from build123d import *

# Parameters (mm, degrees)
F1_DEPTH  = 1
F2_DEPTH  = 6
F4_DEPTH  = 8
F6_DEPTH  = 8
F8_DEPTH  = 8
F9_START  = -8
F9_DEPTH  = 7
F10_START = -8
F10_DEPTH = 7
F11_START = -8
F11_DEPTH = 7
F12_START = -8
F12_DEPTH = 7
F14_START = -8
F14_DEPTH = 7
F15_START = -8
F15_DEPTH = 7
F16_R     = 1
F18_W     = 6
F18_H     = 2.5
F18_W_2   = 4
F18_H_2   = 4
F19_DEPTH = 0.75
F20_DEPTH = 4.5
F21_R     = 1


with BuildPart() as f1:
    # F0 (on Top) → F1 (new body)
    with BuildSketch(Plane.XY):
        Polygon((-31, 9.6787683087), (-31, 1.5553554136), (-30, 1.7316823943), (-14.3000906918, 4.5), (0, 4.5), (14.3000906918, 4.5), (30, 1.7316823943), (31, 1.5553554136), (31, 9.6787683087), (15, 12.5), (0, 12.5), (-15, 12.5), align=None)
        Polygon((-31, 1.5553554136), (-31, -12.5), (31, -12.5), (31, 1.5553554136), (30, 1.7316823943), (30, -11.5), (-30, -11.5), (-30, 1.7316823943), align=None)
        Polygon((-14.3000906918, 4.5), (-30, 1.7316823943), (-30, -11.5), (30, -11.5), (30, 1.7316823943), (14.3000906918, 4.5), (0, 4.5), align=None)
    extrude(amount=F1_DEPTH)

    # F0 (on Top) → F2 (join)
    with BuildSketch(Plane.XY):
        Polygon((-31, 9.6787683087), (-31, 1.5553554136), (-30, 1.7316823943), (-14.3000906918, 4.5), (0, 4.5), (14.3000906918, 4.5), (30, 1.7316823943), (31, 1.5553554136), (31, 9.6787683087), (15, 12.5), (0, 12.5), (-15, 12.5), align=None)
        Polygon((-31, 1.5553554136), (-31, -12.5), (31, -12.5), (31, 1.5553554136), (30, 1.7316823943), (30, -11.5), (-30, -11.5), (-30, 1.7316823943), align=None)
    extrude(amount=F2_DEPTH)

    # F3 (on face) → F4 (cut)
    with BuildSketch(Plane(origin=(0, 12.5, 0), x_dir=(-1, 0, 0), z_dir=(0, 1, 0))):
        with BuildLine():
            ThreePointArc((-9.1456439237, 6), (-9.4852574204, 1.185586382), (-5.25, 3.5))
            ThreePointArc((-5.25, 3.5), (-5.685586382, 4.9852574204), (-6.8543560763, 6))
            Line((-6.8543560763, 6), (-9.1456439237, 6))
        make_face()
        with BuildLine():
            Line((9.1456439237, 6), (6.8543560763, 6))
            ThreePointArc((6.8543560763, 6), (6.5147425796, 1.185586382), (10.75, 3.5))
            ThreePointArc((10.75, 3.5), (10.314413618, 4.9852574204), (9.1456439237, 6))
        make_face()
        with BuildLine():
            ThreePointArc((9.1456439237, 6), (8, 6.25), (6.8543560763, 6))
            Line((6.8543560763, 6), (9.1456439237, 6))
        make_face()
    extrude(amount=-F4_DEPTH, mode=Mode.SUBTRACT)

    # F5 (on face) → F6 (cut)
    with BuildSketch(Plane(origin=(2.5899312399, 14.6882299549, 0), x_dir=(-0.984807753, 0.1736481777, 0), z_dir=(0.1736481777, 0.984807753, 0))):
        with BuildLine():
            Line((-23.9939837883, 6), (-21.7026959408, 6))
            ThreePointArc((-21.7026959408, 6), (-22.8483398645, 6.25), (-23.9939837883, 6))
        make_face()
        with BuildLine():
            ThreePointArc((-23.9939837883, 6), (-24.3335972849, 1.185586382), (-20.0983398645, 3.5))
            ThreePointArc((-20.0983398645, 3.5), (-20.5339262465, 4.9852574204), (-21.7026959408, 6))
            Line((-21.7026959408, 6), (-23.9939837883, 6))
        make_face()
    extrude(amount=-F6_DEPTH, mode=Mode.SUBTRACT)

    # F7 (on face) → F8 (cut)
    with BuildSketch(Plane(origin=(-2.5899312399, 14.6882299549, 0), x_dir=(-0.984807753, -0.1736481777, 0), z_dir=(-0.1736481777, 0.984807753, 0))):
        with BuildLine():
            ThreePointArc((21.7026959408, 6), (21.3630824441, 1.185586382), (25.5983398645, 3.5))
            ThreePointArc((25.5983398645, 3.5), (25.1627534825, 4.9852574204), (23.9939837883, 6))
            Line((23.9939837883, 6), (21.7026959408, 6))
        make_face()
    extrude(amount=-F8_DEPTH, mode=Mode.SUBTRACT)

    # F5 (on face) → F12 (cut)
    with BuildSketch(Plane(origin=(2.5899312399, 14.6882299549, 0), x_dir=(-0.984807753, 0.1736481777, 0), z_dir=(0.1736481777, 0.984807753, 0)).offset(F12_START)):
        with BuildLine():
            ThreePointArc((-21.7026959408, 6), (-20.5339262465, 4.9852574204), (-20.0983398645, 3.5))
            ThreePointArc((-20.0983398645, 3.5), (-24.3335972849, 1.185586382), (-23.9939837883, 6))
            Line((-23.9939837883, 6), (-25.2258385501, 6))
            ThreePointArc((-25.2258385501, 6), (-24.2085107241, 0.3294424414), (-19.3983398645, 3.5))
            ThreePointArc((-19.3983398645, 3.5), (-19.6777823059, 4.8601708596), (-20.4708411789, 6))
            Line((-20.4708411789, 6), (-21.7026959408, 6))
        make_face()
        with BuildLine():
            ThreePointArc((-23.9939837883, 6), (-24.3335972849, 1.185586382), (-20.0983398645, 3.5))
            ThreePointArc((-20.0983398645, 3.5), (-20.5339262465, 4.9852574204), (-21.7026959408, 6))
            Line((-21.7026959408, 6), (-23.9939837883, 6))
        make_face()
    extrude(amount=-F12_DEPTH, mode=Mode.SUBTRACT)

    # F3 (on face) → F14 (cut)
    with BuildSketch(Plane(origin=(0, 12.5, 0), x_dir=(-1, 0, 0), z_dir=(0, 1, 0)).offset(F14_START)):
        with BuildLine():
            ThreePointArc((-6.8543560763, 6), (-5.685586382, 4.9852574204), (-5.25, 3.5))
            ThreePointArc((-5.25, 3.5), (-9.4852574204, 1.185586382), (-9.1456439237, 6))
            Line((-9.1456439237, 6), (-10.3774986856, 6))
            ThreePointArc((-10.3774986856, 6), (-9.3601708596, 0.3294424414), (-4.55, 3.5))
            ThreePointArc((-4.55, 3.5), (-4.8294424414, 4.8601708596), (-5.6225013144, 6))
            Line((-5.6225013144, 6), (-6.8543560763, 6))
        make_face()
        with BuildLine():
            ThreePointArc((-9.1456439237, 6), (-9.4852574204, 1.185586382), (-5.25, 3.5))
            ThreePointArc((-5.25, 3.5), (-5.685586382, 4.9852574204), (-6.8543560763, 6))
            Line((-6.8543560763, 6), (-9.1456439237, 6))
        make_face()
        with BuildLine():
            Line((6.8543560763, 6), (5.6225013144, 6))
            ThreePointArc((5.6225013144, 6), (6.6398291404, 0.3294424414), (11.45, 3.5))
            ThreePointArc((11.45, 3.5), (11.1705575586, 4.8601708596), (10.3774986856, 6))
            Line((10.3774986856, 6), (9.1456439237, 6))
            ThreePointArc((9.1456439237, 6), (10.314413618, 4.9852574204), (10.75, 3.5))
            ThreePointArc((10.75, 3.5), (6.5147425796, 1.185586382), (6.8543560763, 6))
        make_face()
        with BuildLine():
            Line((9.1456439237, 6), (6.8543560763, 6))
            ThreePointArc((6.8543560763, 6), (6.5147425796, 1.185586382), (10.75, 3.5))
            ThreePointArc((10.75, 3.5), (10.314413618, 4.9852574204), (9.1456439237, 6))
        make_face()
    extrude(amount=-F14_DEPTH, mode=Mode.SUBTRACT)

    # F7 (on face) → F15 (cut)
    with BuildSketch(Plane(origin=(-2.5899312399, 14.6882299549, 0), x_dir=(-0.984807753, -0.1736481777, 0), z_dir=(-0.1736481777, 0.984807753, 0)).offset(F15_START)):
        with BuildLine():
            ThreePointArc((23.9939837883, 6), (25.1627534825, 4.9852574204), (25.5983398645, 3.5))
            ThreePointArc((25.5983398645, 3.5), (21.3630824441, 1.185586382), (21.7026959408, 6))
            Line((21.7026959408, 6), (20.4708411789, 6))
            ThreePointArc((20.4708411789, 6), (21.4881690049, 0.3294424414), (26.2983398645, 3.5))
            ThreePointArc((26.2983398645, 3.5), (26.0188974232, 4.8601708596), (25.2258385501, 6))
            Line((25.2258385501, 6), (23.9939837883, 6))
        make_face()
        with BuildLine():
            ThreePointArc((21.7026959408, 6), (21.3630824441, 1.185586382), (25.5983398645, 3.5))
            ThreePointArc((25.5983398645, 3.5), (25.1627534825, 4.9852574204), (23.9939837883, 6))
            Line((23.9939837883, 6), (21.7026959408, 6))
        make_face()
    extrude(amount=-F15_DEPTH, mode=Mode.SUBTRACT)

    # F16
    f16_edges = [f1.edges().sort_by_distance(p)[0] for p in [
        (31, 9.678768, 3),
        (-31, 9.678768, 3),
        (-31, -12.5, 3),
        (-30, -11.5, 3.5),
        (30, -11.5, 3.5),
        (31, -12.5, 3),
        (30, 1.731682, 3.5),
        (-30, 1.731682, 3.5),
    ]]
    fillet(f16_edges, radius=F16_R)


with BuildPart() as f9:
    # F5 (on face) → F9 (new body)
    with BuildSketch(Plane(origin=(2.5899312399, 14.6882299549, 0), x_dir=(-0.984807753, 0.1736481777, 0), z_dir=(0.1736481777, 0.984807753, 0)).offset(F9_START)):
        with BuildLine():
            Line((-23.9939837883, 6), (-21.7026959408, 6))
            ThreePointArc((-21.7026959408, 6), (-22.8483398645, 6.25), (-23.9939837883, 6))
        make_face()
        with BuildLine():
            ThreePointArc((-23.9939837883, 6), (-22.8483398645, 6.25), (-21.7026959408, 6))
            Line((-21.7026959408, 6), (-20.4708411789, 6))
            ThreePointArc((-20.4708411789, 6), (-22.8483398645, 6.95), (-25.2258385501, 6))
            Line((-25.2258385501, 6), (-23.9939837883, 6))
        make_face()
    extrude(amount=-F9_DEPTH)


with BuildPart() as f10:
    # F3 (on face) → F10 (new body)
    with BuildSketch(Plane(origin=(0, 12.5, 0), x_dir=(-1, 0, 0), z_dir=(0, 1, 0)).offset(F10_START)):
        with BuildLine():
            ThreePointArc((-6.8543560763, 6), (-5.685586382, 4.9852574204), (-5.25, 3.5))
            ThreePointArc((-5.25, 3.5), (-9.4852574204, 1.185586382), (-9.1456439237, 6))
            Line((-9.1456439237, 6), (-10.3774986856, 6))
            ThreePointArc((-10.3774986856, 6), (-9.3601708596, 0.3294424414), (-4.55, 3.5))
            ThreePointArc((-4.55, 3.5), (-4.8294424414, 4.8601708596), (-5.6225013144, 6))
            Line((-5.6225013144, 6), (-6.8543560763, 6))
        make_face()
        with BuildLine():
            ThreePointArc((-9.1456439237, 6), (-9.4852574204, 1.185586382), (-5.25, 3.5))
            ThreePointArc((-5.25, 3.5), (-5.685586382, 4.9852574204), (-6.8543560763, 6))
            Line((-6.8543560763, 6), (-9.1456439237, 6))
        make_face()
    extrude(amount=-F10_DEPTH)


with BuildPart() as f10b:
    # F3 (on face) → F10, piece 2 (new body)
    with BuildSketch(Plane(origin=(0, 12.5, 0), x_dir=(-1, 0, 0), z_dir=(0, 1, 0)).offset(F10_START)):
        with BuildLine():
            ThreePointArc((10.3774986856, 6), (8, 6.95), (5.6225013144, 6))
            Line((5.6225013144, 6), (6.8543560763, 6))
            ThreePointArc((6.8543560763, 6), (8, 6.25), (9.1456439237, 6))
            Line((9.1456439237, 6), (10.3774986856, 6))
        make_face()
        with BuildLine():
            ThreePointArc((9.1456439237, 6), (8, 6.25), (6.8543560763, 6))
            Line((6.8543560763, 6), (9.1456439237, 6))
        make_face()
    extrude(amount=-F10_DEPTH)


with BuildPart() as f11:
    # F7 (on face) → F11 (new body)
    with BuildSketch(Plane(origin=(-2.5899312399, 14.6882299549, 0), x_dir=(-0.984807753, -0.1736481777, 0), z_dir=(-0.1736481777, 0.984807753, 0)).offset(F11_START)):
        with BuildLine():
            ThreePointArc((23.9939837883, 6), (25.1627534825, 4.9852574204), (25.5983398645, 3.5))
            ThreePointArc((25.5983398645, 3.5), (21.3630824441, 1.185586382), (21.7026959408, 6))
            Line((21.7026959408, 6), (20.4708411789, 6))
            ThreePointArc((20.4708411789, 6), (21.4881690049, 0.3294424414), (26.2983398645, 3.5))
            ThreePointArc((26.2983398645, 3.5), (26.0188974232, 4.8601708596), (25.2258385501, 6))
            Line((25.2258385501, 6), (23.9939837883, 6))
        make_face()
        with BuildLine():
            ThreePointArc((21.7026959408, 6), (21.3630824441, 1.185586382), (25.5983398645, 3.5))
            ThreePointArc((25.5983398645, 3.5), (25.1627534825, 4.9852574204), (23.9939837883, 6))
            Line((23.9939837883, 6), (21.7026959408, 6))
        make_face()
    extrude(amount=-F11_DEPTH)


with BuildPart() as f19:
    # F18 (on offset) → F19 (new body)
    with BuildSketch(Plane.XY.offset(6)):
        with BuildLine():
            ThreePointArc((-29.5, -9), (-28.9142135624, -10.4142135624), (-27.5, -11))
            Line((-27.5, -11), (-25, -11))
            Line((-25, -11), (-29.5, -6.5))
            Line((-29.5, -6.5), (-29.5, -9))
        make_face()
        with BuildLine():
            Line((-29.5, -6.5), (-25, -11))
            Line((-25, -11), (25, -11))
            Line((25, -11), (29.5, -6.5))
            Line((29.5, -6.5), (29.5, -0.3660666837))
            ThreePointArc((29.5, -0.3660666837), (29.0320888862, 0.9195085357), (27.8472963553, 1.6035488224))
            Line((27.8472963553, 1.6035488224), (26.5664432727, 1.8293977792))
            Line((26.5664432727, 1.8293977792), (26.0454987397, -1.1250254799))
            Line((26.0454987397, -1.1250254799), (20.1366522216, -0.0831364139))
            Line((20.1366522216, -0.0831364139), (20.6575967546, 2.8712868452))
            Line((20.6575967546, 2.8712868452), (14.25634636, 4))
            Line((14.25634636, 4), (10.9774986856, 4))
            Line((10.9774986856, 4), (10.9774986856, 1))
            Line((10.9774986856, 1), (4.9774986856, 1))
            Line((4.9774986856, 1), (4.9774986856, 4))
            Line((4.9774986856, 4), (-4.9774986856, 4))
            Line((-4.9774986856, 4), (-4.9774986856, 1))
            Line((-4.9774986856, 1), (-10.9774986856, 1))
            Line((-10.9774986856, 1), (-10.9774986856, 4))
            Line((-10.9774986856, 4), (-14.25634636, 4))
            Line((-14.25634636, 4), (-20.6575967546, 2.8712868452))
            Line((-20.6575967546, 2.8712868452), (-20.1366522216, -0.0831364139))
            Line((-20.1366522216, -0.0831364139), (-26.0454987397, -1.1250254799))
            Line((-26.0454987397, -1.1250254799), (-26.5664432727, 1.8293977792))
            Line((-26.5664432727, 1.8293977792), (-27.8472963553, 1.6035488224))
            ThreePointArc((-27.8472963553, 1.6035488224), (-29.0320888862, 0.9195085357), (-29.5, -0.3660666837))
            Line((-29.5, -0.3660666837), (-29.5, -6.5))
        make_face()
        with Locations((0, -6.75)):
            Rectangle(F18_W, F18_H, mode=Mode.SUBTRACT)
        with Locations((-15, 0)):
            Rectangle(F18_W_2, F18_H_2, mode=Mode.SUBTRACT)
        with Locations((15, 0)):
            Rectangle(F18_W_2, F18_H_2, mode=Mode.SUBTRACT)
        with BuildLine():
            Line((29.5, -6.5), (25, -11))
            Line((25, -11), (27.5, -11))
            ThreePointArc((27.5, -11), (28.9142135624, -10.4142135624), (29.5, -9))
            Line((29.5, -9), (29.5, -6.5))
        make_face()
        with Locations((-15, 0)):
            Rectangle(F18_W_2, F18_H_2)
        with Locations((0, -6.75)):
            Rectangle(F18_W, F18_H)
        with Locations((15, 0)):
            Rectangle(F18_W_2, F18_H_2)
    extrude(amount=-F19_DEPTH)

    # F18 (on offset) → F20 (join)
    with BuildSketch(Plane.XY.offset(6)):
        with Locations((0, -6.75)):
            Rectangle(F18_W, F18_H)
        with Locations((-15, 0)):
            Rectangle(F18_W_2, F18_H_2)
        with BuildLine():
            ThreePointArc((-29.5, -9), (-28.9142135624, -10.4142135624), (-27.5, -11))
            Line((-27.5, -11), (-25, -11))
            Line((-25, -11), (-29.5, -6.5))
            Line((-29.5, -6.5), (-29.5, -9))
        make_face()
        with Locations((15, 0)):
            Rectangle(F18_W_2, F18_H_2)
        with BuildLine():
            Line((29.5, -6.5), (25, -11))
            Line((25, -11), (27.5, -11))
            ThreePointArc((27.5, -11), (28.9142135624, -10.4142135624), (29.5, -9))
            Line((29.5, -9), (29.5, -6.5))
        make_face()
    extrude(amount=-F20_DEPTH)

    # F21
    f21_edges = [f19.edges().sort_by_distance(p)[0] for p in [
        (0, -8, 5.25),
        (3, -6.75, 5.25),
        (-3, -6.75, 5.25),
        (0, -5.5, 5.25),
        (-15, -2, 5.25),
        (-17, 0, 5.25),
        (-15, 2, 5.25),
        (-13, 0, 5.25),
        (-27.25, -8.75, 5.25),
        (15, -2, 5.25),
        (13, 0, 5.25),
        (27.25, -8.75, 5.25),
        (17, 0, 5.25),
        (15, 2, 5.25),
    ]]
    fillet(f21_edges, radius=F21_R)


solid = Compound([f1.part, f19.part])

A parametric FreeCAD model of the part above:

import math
import FreeCAD as App
import Part
import Sketcher

V = App.Vector
Q = App.Units.Quantity


def edges_at(feature, points):
    """Names of the edges that pass closest to the given points."""
    edges = feature.Shape.Edges
    near = lambda p: min(range(len(edges)), key=lambda i: edges[i].distToShape(Part.Vertex(*p))[0])
    return sorted({f"Edge{near(p) + 1}" for p in points})


def add_polygon(sketch, points):
    """Adds a closed chain of lines whose ends are joined by coincident constraints."""
    first, n = sketch.GeometryCount, len(points)
    for a, b in zip(points, points[1:] + points[:1]):
        sketch.addGeometry(Part.LineSegment(App.Vector(*a, 0), App.Vector(*b, 0)), False)
    for i in range(n):
        sketch.addConstraint(Sketcher.Constraint("Coincident", first + i, 2, first + (i + 1) % n, 1))

doc = App.newDocument("Part")
body = doc.addObject("PartDesign::Body", "Body")

# Sketch on XY plane
sketch1 = doc.addObject("Sketcher::SketchObject", "Sketch")
body.addObject(sketch1)
sketch1.AttachmentSupport = (doc.XY_Plane, [""])
sketch1.MapMode = "FlatFace"
add_polygon(sketch1, [(-31, 9.678768), (-31, -12.5), (31, -12.5), (31, 9.678768), (15, 12.5), (-15, 12.5)])  # lines 0-5
sketch1.addConstraint([
    Sketcher.Constraint("Vertical", 0),
    Sketcher.Constraint("Horizontal", 1),
    Sketcher.Constraint("Vertical", 2),
    Sketcher.Constraint("Horizontal", 4),
    Sketcher.Constraint("Symmetric", 2, 2, 5, 2, -2),
    Sketcher.Constraint("Equal", 3, 5),
    Sketcher.Constraint("DistanceX", 1, 1, 1, 2, Q("62 mm")),
    Sketcher.Constraint("DistanceX", 4, 2, 4, 1, Q("30 mm")),
    Sketcher.Constraint("Angle", 3, Q("170 deg")),
    Sketcher.Constraint("DistanceY", 1, 2, 3, 2, Q("25 mm")),
    Sketcher.Constraint("DistanceY", 0, 2, -1, 1, Q("12.5 mm")),
])
pad1 = doc.addObject("PartDesign::Pad", "Pad")
body.addObject(pad1)
pad1.Profile = sketch1
pad1.Length = 1

# Sketch on XY plane
sketch2 = doc.addObject("Sketcher::SketchObject", "Sketch001")
body.addObject(sketch2)
sketch2.AttachmentSupport = (doc.XY_Plane, [""])
sketch2.MapMode = "FlatFace"
add_polygon(sketch2, [(-31, 9.678768), (-31, -12.5), (31, -12.5), (31, 9.678768), (15, 12.5), (-15, 12.5)])  # lines 0-5
add_polygon(sketch2, [(-30, 1.731682), (-14.300091, 4.5), (14.300091, 4.5), (30, 1.731682), (30, -11.5), (-30, -11.5)])  # lines 6-11
sketch2.addConstraint([
    Sketcher.Constraint("Vertical", 0),
    Sketcher.Constraint("Horizontal", 1),
    Sketcher.Constraint("Vertical", 2),
    Sketcher.Constraint("Horizontal", 4),
    Sketcher.Constraint("Horizontal", 7),
    Sketcher.Constraint("Vertical", 9),
    Sketcher.Constraint("Horizontal", 10),
    Sketcher.Constraint("Vertical", 11),
    Sketcher.Constraint("Symmetric", 2, 2, 5, 2, -2),
    Sketcher.Constraint("Symmetric", 8, 2, 11, 2, -2),
    Sketcher.Constraint("Parallel", 5, 6),
    Sketcher.Constraint("Parallel", 3, 8),
    Sketcher.Constraint("Equal", 3, 5),
    Sketcher.Constraint("DistanceX", 1, 1, 1, 2, Q("62 mm")),
    Sketcher.Constraint("DistanceX", 4, 2, 4, 1, Q("30 mm")),
    Sketcher.Constraint("DistanceX", 10, 2, 10, 1, Q("60 mm")),
    Sketcher.Constraint("Angle", 3, Q("170 deg")),
    Sketcher.Constraint("DistanceY", 1, 2, 3, 2, Q("25 mm")),
    Sketcher.Constraint("DistanceY", 6, 2, 4, 2, Q("8 mm")),
    Sketcher.Constraint("DistanceY", 1, 2, 9, 2, Q("1 mm")),
    Sketcher.Constraint("DistanceY", 0, 2, -1, 1, Q("12.5 mm")),
    Sketcher.Constraint("DistanceX", 7, 1, 7, 2, Q("28.600181 mm")),
])
pad2 = doc.addObject("PartDesign::Pad", "Pad001")
body.addObject(pad2)
pad2.Profile = sketch2
pad2.Length = 6

# Sketch on XZ plane
sketch3 = doc.addObject("Sketcher::SketchObject", "Sketch002")
body.addObject(sketch3)
sketch3.AttachmentSupport = (doc.XZ_Plane, [""])
sketch3.MapMode = "FlatFace"
sketch3.AttachmentOffset = App.Placement(V(0, 0, -12.5), App.Rotation())
sketch3.addGeometry([
    Part.ArcOfCircle(Part.Circle(V(8, 3.5, 0), V(0, 0, 1), 2.75), math.radians(180), math.radians(425.380023)),  # 0
    Part.ArcOfCircle(Part.Circle(V(8, 3.5, 0), V(0, 0, 1), 2.75), math.radians(114.619977), math.radians(180)),  # 1
    Part.LineSegment(V(6.854356, 6, 0), V(9.145644, 6, 0)),  # 2
    Part.ArcOfCircle(Part.Circle(V(-8, 3.5, 0), V(0, 0, 1), 2.75), math.radians(180), math.radians(425.380023)),  # 3
    Part.ArcOfCircle(Part.Circle(V(-8, 3.5, 0), V(0, 0, 1), 2.75), math.radians(114.619977), math.radians(180)),  # 4
    Part.ArcOfCircle(Part.Circle(V(-8, 3.5, 0), V(0, 0, 1), 2.75), math.radians(65.380023), math.radians(114.619977)),  # 5
], False)
sketch3.addConstraint([
    Sketcher.Constraint("Tangent", 0, 1, 1, 2),
    Sketcher.Constraint("Coincident", 1, 1, 2, 1),
    Sketcher.Constraint("Coincident", 2, 2, 0, 2),
    Sketcher.Constraint("Tangent", 3, 1, 4, 2),
    Sketcher.Constraint("Tangent", 4, 1, 5, 2),
    Sketcher.Constraint("Tangent", 5, 1, 3, 2),
    Sketcher.Constraint("Horizontal", 2),
    Sketcher.Constraint("Equal", 0, 1),
    Sketcher.Constraint("Equal", 1, 3),
    Sketcher.Constraint("Symmetric", 0, 3, 3, 3, -2),
    Sketcher.Constraint("Horizontal", 5, 3, 0, 1),
    Sketcher.Constraint("Horizontal", 0, 1, 3, 1),
    Sketcher.Constraint("Horizontal", 2, 2, 4, 1),
    Sketcher.Constraint("Horizontal", 4, 1, 5, 1),
    Sketcher.Constraint("Radius", 0, Q("2.75 mm")),
    Sketcher.Constraint("DistanceX", -1, 1, 0, 3, Q("8 mm")),
    Sketcher.Constraint("DistanceY", -1, 1, 1, 1, Q("6 mm")),
    Sketcher.Constraint("DistanceY", -1, 1, 0, 3, Q("3.5 mm")),
])
pocket1 = doc.addObject("PartDesign::Pocket", "Pocket")
body.addObject(pocket1)
pocket1.Profile = sketch3
pocket1.Length = 8
pocket1.Reversed = True

# Sketch on an angled plane
sketch4 = doc.addObject("Sketcher::SketchObject", "Sketch003")
body.addObject(sketch4)
sketch4.Placement = App.Placement(V(2.589931, 14.68823, 0), App.Rotation(V(-0.984807753, 0.173648178, 0), V(0, 0, 1), V(0.173648178, 0.984807753, 0), "ZXY"))
sketch4.addGeometry([
    Part.ArcOfCircle(Part.Circle(V(-22.84834, 3.5, 0), V(0, 0, 1), 2.75), math.radians(65.380023), math.radians(114.619977)),
    Part.ArcOfCircle(Part.Circle(V(-22.84834, 3.5, 0), V(0, 0, 1), 2.75), math.radians(114.619977), math.radians(360)),
    Part.ArcOfCircle(Part.Circle(V(-22.84834, 3.5, 0), V(0, 0, 1), 2.75), math.radians(0), math.radians(65.380023)),
], False)
sketch4.addConstraint([
    Sketcher.Constraint("Tangent", 0, 2, 1, 1),
    Sketcher.Constraint("Tangent", 1, 2, 2, 1),
    Sketcher.Constraint("Tangent", 2, 2, 0, 1),
    Sketcher.Constraint("Horizontal", 2, 3, 1, 2),
    Sketcher.Constraint("Horizontal", 0, 2, 2, 2),
    Sketcher.Constraint("Radius", 0, Q("2.75 mm")),
    Sketcher.Constraint("DistanceY", -1, 1, 0, 2, Q("6 mm")),
    Sketcher.Constraint("DistanceY", -1, 1, 0, 3, Q("3.5 mm")),
    Sketcher.Constraint("DistanceX", 0, 3, -1, 1, Q("22.84834 mm")),
])
pocket2 = doc.addObject("PartDesign::Pocket", "Pocket001")
body.addObject(pocket2)
pocket2.Profile = sketch4
pocket2.Length = 8

# Sketch on an angled plane
sketch5 = doc.addObject("Sketcher::SketchObject", "Sketch004")
body.addObject(sketch5)
sketch5.Placement = App.Placement(V(-2.589931, 14.68823, 0), App.Rotation(V(-0.984807753, -0.173648178, 0), V(0, 0, 1), V(-0.173648178, 0.984807753, 0), "ZXY"))
sketch5.addGeometry([
    Part.ArcOfCircle(Part.Circle(V(22.84834, 3.5, 0), V(0, 0, 1), 2.75), math.radians(114.619977), math.radians(360)),
    Part.ArcOfCircle(Part.Circle(V(22.84834, 3.5, 0), V(0, 0, 1), 2.75), math.radians(0), math.radians(65.380023)),
    Part.LineSegment(V(23.993984, 6, 0), V(21.702696, 6, 0)),
], False)
sketch5.addConstraint([
    Sketcher.Constraint("Tangent", 0, 2, 1, 1),
    Sketcher.Constraint("Coincident", 1, 2, 2, 1),
    Sketcher.Constraint("Coincident", 2, 2, 0, 1),
    Sketcher.Constraint("Horizontal", 2),
    Sketcher.Constraint("Equal", 0, 1),
    Sketcher.Constraint("Horizontal", 1, 3, 0, 2),
    Sketcher.Constraint("Radius", 0, Q("2.75 mm")),
    Sketcher.Constraint("DistanceY", -1, 1, 1, 2, Q("6 mm")),
    Sketcher.Constraint("DistanceY", -1, 1, 0, 3, Q("3.5 mm")),
    Sketcher.Constraint("DistanceX", -1, 1, 0, 3, Q("22.84834 mm")),
])
pocket3 = doc.addObject("PartDesign::Pocket", "Pocket002")
body.addObject(pocket3)
pocket3.Profile = sketch5
pocket3.Length = 8

# Sketch on an angled plane
sketch6 = doc.addObject("Sketcher::SketchObject", "Sketch005")
body.addObject(sketch6)
sketch6.Placement = App.Placement(V(1.200746, 6.809768, 0), App.Rotation(V(-0.984807753, 0.173648178, 0), V(0, 0, 1), V(0.173648178, 0.984807753, 0), "ZXY"))
sketch6.addGeometry([
    Part.ArcOfCircle(Part.Circle(V(-22.84834, 3.5, 0), V(0, 0, 1), 3.45), math.radians(133.561284), math.radians(360)),
    Part.ArcOfCircle(Part.Circle(V(-22.84834, 3.5, 0), V(0, 0, 1), 3.45), math.radians(0), math.radians(46.438716)),
    Part.LineSegment(V(-20.470841, 6, 0), V(-25.225839, 6, 0)),
], False)
sketch6.addConstraint([
    Sketcher.Constraint("Tangent", 0, 2, 1, 1),
    Sketcher.Constraint("Coincident", 1, 2, 2, 1),
    Sketcher.Constraint("Coincident", 2, 2, 0, 1),
    Sketcher.Constraint("Horizontal", 2),
    Sketcher.Constraint("Equal", 0, 1),
    Sketcher.Constraint("Horizontal", 1, 3, 0, 2),
    Sketcher.Constraint("Radius", 0, Q("3.45 mm")),
    Sketcher.Constraint("DistanceY", -1, 1, 1, 2, Q("6 mm")),
    Sketcher.Constraint("DistanceY", -1, 1, 0, 3, Q("3.5 mm")),
    Sketcher.Constraint("DistanceX", 0, 3, -1, 1, Q("22.84834 mm")),
])
pocket4 = doc.addObject("PartDesign::Pocket", "Pocket003")
body.addObject(pocket4)
pocket4.Profile = sketch6
pocket4.Length = 7

# Sketch on XZ plane
sketch7 = doc.addObject("Sketcher::SketchObject", "Sketch006")
body.addObject(sketch7)
sketch7.AttachmentSupport = (doc.XZ_Plane, [""])
sketch7.MapMode = "FlatFace"
sketch7.AttachmentOffset = App.Placement(V(0, 0, -4.5), App.Rotation())
sketch7.addGeometry([
    Part.ArcOfCircle(Part.Circle(V(8, 3.5, 0), V(0, 0, 1), 3.45), math.radians(180), math.radians(406.438716)),  # 0
    Part.ArcOfCircle(Part.Circle(V(8, 3.5, 0), V(0, 0, 1), 3.45), math.radians(133.561284), math.radians(180)),  # 1
    Part.LineSegment(V(5.622501, 6, 0), V(10.377499, 6, 0)),  # 2
    Part.ArcOfCircle(Part.Circle(V(-8, 3.5, 0), V(0, 0, 1), 3.45), math.radians(180), math.radians(406.438716)),  # 3
    Part.ArcOfCircle(Part.Circle(V(-8, 3.5, 0), V(0, 0, 1), 3.45), math.radians(133.561284), math.radians(180)),  # 4
    Part.LineSegment(V(-10.377499, 6, 0), V(-5.622501, 6, 0)),  # 5
], False)
sketch7.addConstraint([
    Sketcher.Constraint("Tangent", 0, 1, 1, 2),
    Sketcher.Constraint("Coincident", 1, 1, 2, 1),
    Sketcher.Constraint("Coincident", 2, 2, 0, 2),
    Sketcher.Constraint("Tangent", 3, 1, 4, 2),
    Sketcher.Constraint("Coincident", 4, 1, 5, 1),
    Sketcher.Constraint("Coincident", 5, 2, 3, 2),
    Sketcher.Constraint("Horizontal", 2),
    Sketcher.Constraint("Horizontal", 5),
    Sketcher.Constraint("Equal", 0, 1),
    Sketcher.Constraint("Equal", 1, 3),
    Sketcher.Constraint("Equal", 3, 4),
    Sketcher.Constraint("Symmetric", 0, 3, 3, 3, -2),
    Sketcher.Constraint("Horizontal", 4, 3, 0, 1),
    Sketcher.Constraint("Horizontal", 0, 1, 3, 1),
    Sketcher.Constraint("Horizontal", 2, 2, 4, 1),
    Sketcher.Constraint("Radius", 0, Q("3.45 mm")),
    Sketcher.Constraint("DistanceX", -1, 1, 0, 3, Q("8 mm")),
    Sketcher.Constraint("DistanceY", -1, 1, 1, 1, Q("6 mm")),
    Sketcher.Constraint("DistanceY", -1, 1, 0, 3, Q("3.5 mm")),
])
pocket5 = doc.addObject("PartDesign::Pocket", "Pocket004")
body.addObject(pocket5)
pocket5.Profile = sketch7
pocket5.Length = 7
pocket5.Reversed = True

# Sketch on an angled plane
sketch8 = doc.addObject("Sketcher::SketchObject", "Sketch007")
body.addObject(sketch8)
sketch8.Placement = App.Placement(V(-1.200746, 6.809768, 0), App.Rotation(V(-0.984807753, -0.173648178, 0), V(0, 0, 1), V(-0.173648178, 0.984807753, 0), "ZXY"))
sketch8.addGeometry([
    Part.ArcOfCircle(Part.Circle(V(22.84834, 3.5, 0), V(0, 0, 1), 3.45), math.radians(133.561284), math.radians(360)),
    Part.ArcOfCircle(Part.Circle(V(22.84834, 3.5, 0), V(0, 0, 1), 3.45), math.radians(0), math.radians(46.438716)),
    Part.LineSegment(V(25.225839, 6, 0), V(20.470841, 6, 0)),
], False)
sketch8.addConstraint([
    Sketcher.Constraint("Tangent", 0, 2, 1, 1),
    Sketcher.Constraint("Coincident", 1, 2, 2, 1),
    Sketcher.Constraint("Coincident", 2, 2, 0, 1),
    Sketcher.Constraint("Horizontal", 2),
    Sketcher.Constraint("Equal", 0, 1),
    Sketcher.Constraint("Horizontal", 1, 3, 0, 2),
    Sketcher.Constraint("Radius", 0, Q("3.45 mm")),
    Sketcher.Constraint("DistanceY", -1, 1, 1, 2, Q("6 mm")),
    Sketcher.Constraint("DistanceY", -1, 1, 0, 3, Q("3.5 mm")),
    Sketcher.Constraint("DistanceX", -1, 1, 0, 3, Q("22.84834 mm")),
])
pocket6 = doc.addObject("PartDesign::Pocket", "Pocket005")
body.addObject(pocket6)
pocket6.Profile = sketch8
pocket6.Length = 7
doc.recompute()

fillet = doc.addObject("PartDesign::Fillet", "Fillet")
body.addObject(fillet)
fillet.Base = (pocket6, edges_at(pocket6, [
    (31, 9.679, 3),
    (-31, 9.679, 3),
    (-31, -12.5, 3),
    (-30, -11.5, 3.5),
    (30, -11.5, 3.5),
    (31, -12.5, 3),
    (30, 1.732, 3.5),
    (-30, 1.732, 3.5),
]))
fillet.Radius = 1
body2 = doc.addObject("PartDesign::Body", "Body001")

# Sketch on an angled plane
sketch9 = doc.addObject("Sketcher::SketchObject", "Sketch008")
body2.addObject(sketch9)
sketch9.Placement = App.Placement(V(1.200746, 6.809768, 0), App.Rotation(V(-0.984807753, 0.173648178, 0), V(0, 0, 1), V(0.173648178, 0.984807753, 0), "ZXY"))
sketch9.addGeometry([
    Part.ArcOfCircle(Part.Circle(V(-22.84834, 3.5, 0), V(0, 0, 1), 3.45), math.radians(46.438716), math.radians(133.561284)),
    Part.LineSegment(V(-25.225839, 6, 0), V(-20.470841, 6, 0)),
], False)
sketch9.addConstraint([
    Sketcher.Constraint("Coincident", 0, 1, 1, 2),
    Sketcher.Constraint("Coincident", 1, 1, 0, 2),
    Sketcher.Constraint("Horizontal", 1),
    Sketcher.Constraint("Radius", 0, Q("3.45 mm")),
    Sketcher.Constraint("DistanceY", -1, 1, 0, 1, Q("6 mm")),
    Sketcher.Constraint("DistanceY", -1, 1, 0, 3, Q("3.5 mm")),
    Sketcher.Constraint("DistanceX", 0, 3, -1, 1, Q("22.84834 mm")),
])
pad3 = doc.addObject("PartDesign::Pad", "Pad002")
body2.addObject(pad3)
pad3.Profile = sketch9
pad3.Length = 7
pad3.Reversed = True
body3 = doc.addObject("PartDesign::Body", "Body002")

# Sketch on XZ plane
sketch10 = doc.addObject("Sketcher::SketchObject", "Sketch009")
body3.addObject(sketch10)
sketch10.AttachmentSupport = (doc.getObject("XZ_Plane002"), [""])
sketch10.MapMode = "FlatFace"
sketch10.AttachmentOffset = App.Placement(V(0, 0, -4.5), App.Rotation())
sketch10.addGeometry([
    Part.ArcOfCircle(Part.Circle(V(8, 3.5, 0), V(0, 0, 1), 3.45), math.radians(180), math.radians(406.438716)),
    Part.ArcOfCircle(Part.Circle(V(8, 3.5, 0), V(0, 0, 1), 3.45), math.radians(133.561284), math.radians(180)),
    Part.LineSegment(V(5.622501, 6, 0), V(10.377499, 6, 0)),
], False)
sketch10.addConstraint([
    Sketcher.Constraint("Tangent", 0, 1, 1, 2),
    Sketcher.Constraint("Coincident", 1, 1, 2, 1),
    Sketcher.Constraint("Coincident", 2, 2, 0, 2),
    Sketcher.Constraint("Horizontal", 2),
    Sketcher.Constraint("Equal", 0, 1),
    Sketcher.Constraint("Horizontal", 1, 3, 0, 1),
    Sketcher.Constraint("Radius", 0, Q("3.45 mm")),
    Sketcher.Constraint("DistanceX", -1, 1, 0, 3, Q("8 mm")),
    Sketcher.Constraint("DistanceY", -1, 1, 1, 1, Q("6 mm")),
    Sketcher.Constraint("DistanceY", -1, 1, 0, 3, Q("3.5 mm")),
])
pad4 = doc.addObject("PartDesign::Pad", "Pad003")
body3.addObject(pad4)
pad4.Profile = sketch10
pad4.Length = 7
body4 = doc.addObject("PartDesign::Body", "Body003")

# Sketch on XZ plane
sketch11 = doc.addObject("Sketcher::SketchObject", "Sketch010")
body4.addObject(sketch11)
sketch11.AttachmentSupport = (doc.getObject("XZ_Plane003"), [""])
sketch11.MapMode = "FlatFace"
sketch11.AttachmentOffset = App.Placement(V(0, 0, -4.5), App.Rotation())
sketch11.addGeometry([
    Part.ArcOfCircle(Part.Circle(V(-8, 3.5, 0), V(0, 0, 1), 3.45), math.radians(46.438716), math.radians(133.561284)),
    Part.LineSegment(V(-5.622501, 6, 0), V(-10.377499, 6, 0)),
], False)
sketch11.addConstraint([
    Sketcher.Constraint("Coincident", 0, 1, 1, 1),
    Sketcher.Constraint("Coincident", 1, 2, 0, 2),
    Sketcher.Constraint("Horizontal", 1),
    Sketcher.Constraint("Radius", 0, Q("3.45 mm")),
    Sketcher.Constraint("DistanceX", 0, 3, -1, 1, Q("8 mm")),
    Sketcher.Constraint("DistanceY", -1, 1, 0, 1, Q("6 mm")),
    Sketcher.Constraint("DistanceY", -1, 1, 0, 3, Q("3.5 mm")),
])
pad5 = doc.addObject("PartDesign::Pad", "Pad004")
body4.addObject(pad5)
pad5.Profile = sketch11
pad5.Length = 7
body5 = doc.addObject("PartDesign::Body", "Body004")

# Sketch on an angled plane
sketch12 = doc.addObject("Sketcher::SketchObject", "Sketch011")
body5.addObject(sketch12)
sketch12.Placement = App.Placement(V(-1.200746, 6.809768, 0), App.Rotation(V(-0.984807753, -0.173648178, 0), V(0, 0, 1), V(-0.173648178, 0.984807753, 0), "ZXY"))
sketch12.addGeometry([
    Part.ArcOfCircle(Part.Circle(V(22.84834, 3.5, 0), V(0, 0, 1), 3.45), math.radians(133.561284), math.radians(360)),
    Part.ArcOfCircle(Part.Circle(V(22.84834, 3.5, 0), V(0, 0, 1), 3.45), math.radians(0), math.radians(46.438716)),
    Part.LineSegment(V(25.225839, 6, 0), V(20.470841, 6, 0)),
], False)
sketch12.addConstraint([
    Sketcher.Constraint("Tangent", 0, 2, 1, 1),
    Sketcher.Constraint("Coincident", 1, 2, 2, 1),
    Sketcher.Constraint("Coincident", 2, 2, 0, 1),
    Sketcher.Constraint("Horizontal", 2),
    Sketcher.Constraint("Equal", 0, 1),
    Sketcher.Constraint("Horizontal", 1, 3, 0, 2),
    Sketcher.Constraint("Radius", 0, Q("3.45 mm")),
    Sketcher.Constraint("DistanceY", -1, 1, 1, 2, Q("6 mm")),
    Sketcher.Constraint("DistanceY", -1, 1, 0, 3, Q("3.5 mm")),
    Sketcher.Constraint("DistanceX", -1, 1, 0, 3, Q("22.84834 mm")),
])
pad6 = doc.addObject("PartDesign::Pad", "Pad005")
body5.addObject(pad6)
pad6.Profile = sketch12
pad6.Length = 7
pad6.Reversed = True
body6 = doc.addObject("PartDesign::Body", "Body005")

# Sketch on XY plane
sketch13 = doc.addObject("Sketcher::SketchObject", "Sketch012")
body6.addObject(sketch13)
sketch13.AttachmentSupport = (doc.getObject("XY_Plane005"), [""])
sketch13.MapMode = "FlatFace"
sketch13.AttachmentOffset = App.Placement(V(0, 0, 6), App.Rotation())
sketch13.addGeometry([
    Part.ArcOfCircle(Part.Circle(V(-27.5, -9, 0), V(0, 0, 1), 2), math.radians(180), math.radians(270)),  # 0
    Part.LineSegment(V(-27.5, -11, 0), V(27.5, -11, 0)),  # 1
    Part.ArcOfCircle(Part.Circle(V(27.5, -9, 0), V(0, 0, 1), 2), math.radians(-90), math.radians(0)),  # 2
    Part.LineSegment(V(29.5, -9, 0), V(29.5, -0.366067, 0)),  # 3
    Part.ArcOfCircle(Part.Circle(V(27.5, -0.366067, 0), V(0, 0, 1), 2), math.radians(0), math.radians(80)),  # 4
    Part.LineSegment(V(27.847296, 1.603549, 0), V(26.566443, 1.829398, 0)),  # 5
    Part.LineSegment(V(26.566443, 1.829398, 0), V(26.045499, -1.125025, 0)),  # 6
    Part.LineSegment(V(26.045499, -1.125025, 0), V(20.136652, -0.083136, 0)),  # 7
    Part.LineSegment(V(20.136652, -0.083136, 0), V(20.657597, 2.871287, 0)),  # 8
    Part.LineSegment(V(20.657597, 2.871287, 0), V(14.256346, 4, 0)),  # 9
    Part.LineSegment(V(14.256346, 4, 0), V(10.977499, 4, 0)),  # 10
    Part.LineSegment(V(10.977499, 4, 0), V(10.977499, 1, 0)),  # 11
    Part.LineSegment(V(10.977499, 1, 0), V(4.977499, 1, 0)),  # 12
    Part.LineSegment(V(4.977499, 1, 0), V(4.977499, 4, 0)),  # 13
    Part.LineSegment(V(4.977499, 4, 0), V(-4.977499, 4, 0)),  # 14
    Part.LineSegment(V(-4.977499, 4, 0), V(-4.977499, 1, 0)),  # 15
    Part.LineSegment(V(-4.977499, 1, 0), V(-10.977499, 1, 0)),  # 16
    Part.LineSegment(V(-10.977499, 1, 0), V(-10.977499, 4, 0)),  # 17
    Part.LineSegment(V(-10.977499, 4, 0), V(-14.256346, 4, 0)),  # 18
    Part.LineSegment(V(-14.256346, 4, 0), V(-20.657597, 2.871287, 0)),  # 19
    Part.LineSegment(V(-20.657597, 2.871287, 0), V(-20.136652, -0.083136, 0)),  # 20
    Part.LineSegment(V(-20.136652, -0.083136, 0), V(-26.045499, -1.125025, 0)),  # 21
    Part.LineSegment(V(-26.045499, -1.125025, 0), V(-26.566443, 1.829398, 0)),  # 22
    Part.LineSegment(V(-26.566443, 1.829398, 0), V(-27.847296, 1.603549, 0)),  # 23
    Part.ArcOfCircle(Part.Circle(V(-27.5, -0.366067, 0), V(0, 0, 1), 2), math.radians(100), math.radians(180)),  # 24
    Part.LineSegment(V(-29.5, -0.366067, 0), V(-29.5, -9, 0)),  # 25
], False)
sketch13.addConstraint([
    Sketcher.Constraint("Tangent", 0, 2, 1, 1),
    Sketcher.Constraint("Tangent", 1, 2, 2, 1),
    Sketcher.Constraint("Tangent", 2, 2, 3, 1),
    Sketcher.Constraint("Tangent", 3, 2, 4, 1),
    Sketcher.Constraint("Tangent", 4, 2, 5, 1),
    Sketcher.Constraint("Coincident", 5, 2, 6, 1),
    Sketcher.Constraint("Coincident", 6, 2, 7, 1),
    Sketcher.Constraint("Coincident", 7, 2, 8, 1),
    Sketcher.Constraint("Coincident", 8, 2, 9, 1),
    Sketcher.Constraint("Coincident", 9, 2, 10, 1),
    Sketcher.Constraint("Coincident", 10, 2, 11, 1),
    Sketcher.Constraint("Coincident", 11, 2, 12, 1),
    Sketcher.Constraint("Coincident", 12, 2, 13, 1),
    Sketcher.Constraint("Coincident", 13, 2, 14, 1),
    Sketcher.Constraint("Coincident", 14, 2, 15, 1),
    Sketcher.Constraint("Coincident", 15, 2, 16, 1),
    Sketcher.Constraint("Coincident", 16, 2, 17, 1),
    Sketcher.Constraint("Coincident", 17, 2, 18, 1),
    Sketcher.Constraint("Coincident", 18, 2, 19, 1),
    Sketcher.Constraint("Coincident", 19, 2, 20, 1),
    Sketcher.Constraint("Coincident", 20, 2, 21, 1),
    Sketcher.Constraint("Coincident", 21, 2, 22, 1),
    Sketcher.Constraint("Coincident", 22, 2, 23, 1),
    Sketcher.Constraint("Tangent", 23, 2, 24, 1),
    Sketcher.Constraint("Tangent", 24, 2, 25, 1),
    Sketcher.Constraint("Tangent", 25, 2, 0, 1),
    Sketcher.Constraint("Horizontal", 1),
    Sketcher.Constraint("Vertical", 3),
    Sketcher.Constraint("Horizontal", 10),
    Sketcher.Constraint("Vertical", 11),
    Sketcher.Constraint("Horizontal", 12),
    Sketcher.Constraint("Vertical", 13),
    Sketcher.Constraint("Horizontal", 14),
    Sketcher.Constraint("Vertical", 15),
    Sketcher.Constraint("Horizontal", 16),
    Sketcher.Constraint("Vertical", 17),
    Sketcher.Constraint("Horizontal", 18),
    Sketcher.Constraint("Vertical", 25),
    Sketcher.Constraint("Equal", 0, 2),
    Sketcher.Constraint("Equal", 2, 4),
    Sketcher.Constraint("Equal", 4, 24),
    Sketcher.Constraint("Symmetric", 4, 3, 24, 3, -2),
    Sketcher.Constraint("Symmetric", 12, 2, 15, 2, -2),
    Sketcher.Constraint("Symmetric", 10, 2, 17, 2, -2),
    Sketcher.Constraint("Symmetric", 8, 2, 19, 2, -2),
    Sketcher.Constraint("Symmetric", 7, 2, 20, 2, -2),
    Sketcher.Constraint("Symmetric", 6, 2, 21, 2, -2),
    Sketcher.Constraint("Symmetric", 5, 2, 22, 2, -2),
    Sketcher.Constraint("Perpendicular", 5, 6),
    Sketcher.Constraint("Perpendicular", 6, 7),
    Sketcher.Constraint("Perpendicular", 7, 8),
    Sketcher.Constraint("Perpendicular", 8, 9),
    Sketcher.Constraint("Perpendicular", 19, 20),
    Sketcher.Constraint("Horizontal", 10, 2, 13, 2),
    Sketcher.Constraint("Equal", 6, 8),
    Sketcher.Constraint("Radius", 0, Q("2 mm")),
    Sketcher.Constraint("DistanceX", 1, 1, 1, 2, Q("55 mm")),
    Sketcher.Constraint("DistanceX", 12, 2, 12, 1, Q("6 mm")),
    Sketcher.Constraint("DistanceY", 11, 2, 11, 1, Q("3 mm")),
    Sketcher.Constraint("Angle", 5, Q("170 deg")),
    Sketcher.Constraint("Distance", 6, Q("3 mm")),
    Sketcher.Constraint("Distance", 7, Q("6 mm")),
    Sketcher.Constraint("DistanceY", 0, 3, -1, 1, Q("9 mm")),
    Sketcher.Constraint("DistanceY", -1, 1, 9, 2, Q("4 mm")),
    Sketcher.Constraint("Distance", 9, Q("6.5 mm")),
    Sketcher.Constraint("DistanceX", 10, 2, 6, 2, Q("15.068 mm")),
    Sketcher.Constraint("DistanceX", -1, 1, 6, 2, Q("26.045499 mm")),
])
pad7 = doc.addObject("PartDesign::Pad", "Pad006")
body6.addObject(pad7)
pad7.Profile = sketch13
pad7.Length = 0.75
pad7.Reversed = True

# Sketch on XY plane
sketch14 = doc.addObject("Sketcher::SketchObject", "Sketch013")
body6.addObject(sketch14)
sketch14.AttachmentSupport = (doc.getObject("XY_Plane005"), [""])
sketch14.MapMode = "FlatFace"
sketch14.AttachmentOffset = App.Placement(V(0, 0, 6), App.Rotation())
add_polygon(sketch14, [(-3, -5.5), (-3, -8), (3, -8), (3, -5.5)])  # lines 0-3
add_polygon(sketch14, [(-17, 2), (-17, -2), (-13, -2), (-13, 2)])  # lines 4-7
sketch14.addGeometry(Part.ArcOfCircle(Part.Circle(V(-27.5, -9, 0), V(0, 0, 1), 2), math.radians(180), math.radians(270)), False)  # 8
sketch14.addGeometry(Part.LineSegment(V(-27.5, -11, 0), V(-25, -11, 0)), False)  # 9
sketch14.addGeometry(Part.LineSegment(V(-25, -11, 0), V(-29.5, -6.5, 0)), False)  # 10
sketch14.addGeometry(Part.LineSegment(V(-29.5, -6.5, 0), V(-29.5, -9, 0)), False)  # 11
add_polygon(sketch14, [(13, 2), (13, -2), (17, -2), (17, 2)])  # lines 12-15
sketch14.addGeometry(Part.LineSegment(V(29.5, -6.5, 0), V(25, -11, 0)), False)  # 16
sketch14.addGeometry(Part.LineSegment(V(25, -11, 0), V(27.5, -11, 0)), False)  # 17
sketch14.addGeometry(Part.ArcOfCircle(Part.Circle(V(27.5, -9, 0), V(0, 0, 1), 2), math.radians(-90), math.radians(0)), False)  # 18
sketch14.addGeometry(Part.LineSegment(V(29.5, -9, 0), V(29.5, -6.5, 0)), False)  # 19
sketch14.addConstraint([
    Sketcher.Constraint("Tangent", 8, 2, 9, 1),
    Sketcher.Constraint("Coincident", 9, 2, 10, 1),
    Sketcher.Constraint("Coincident", 10, 2, 11, 1),
    Sketcher.Constraint("Tangent", 11, 2, 8, 1),
    Sketcher.Constraint("Coincident", 16, 2, 17, 1),
    Sketcher.Constraint("Tangent", 17, 2, 18, 1),
    Sketcher.Constraint("Tangent", 18, 2, 19, 1),
    Sketcher.Constraint("Coincident", 19, 2, 16, 1),
    Sketcher.Constraint("Vertical", 0),
    Sketcher.Constraint("Horizontal", 1),
    Sketcher.Constraint("Vertical", 2),
    Sketcher.Constraint("Horizontal", 3),
    Sketcher.Constraint("Vertical", 4),
    Sketcher.Constraint("Horizontal", 5),
    Sketcher.Constraint("Vertical", 6),
    Sketcher.Constraint("Horizontal", 7),
    Sketcher.Constraint("Horizontal", 9),
    Sketcher.Constraint("Vertical", 11),
    Sketcher.Constraint("Vertical", 12),
    Sketcher.Constraint("Horizontal", 13),
    Sketcher.Constraint("Vertical", 14),
    Sketcher.Constraint("Horizontal", 15),
    Sketcher.Constraint("Horizontal", 17),
    Sketcher.Constraint("Vertical", 19),
    Sketcher.Constraint("Equal", 8, 18),
    Sketcher.Constraint("Symmetric", 6, 2, 12, 2, -1, 1),
    Sketcher.Constraint("Symmetric", 4, 2, 14, 2, -1, 1),
    Sketcher.Constraint("Symmetric", 8, 3, 18, 3, -2),
    Sketcher.Constraint("Perpendicular", 10, 16),
    Sketcher.Constraint("Horizontal", 5, 2, 12, 2),
    Sketcher.Constraint("Horizontal", 10, 2, 19, 2),
    Sketcher.Constraint("Equal", 9, 17),
    Sketcher.Constraint("Equal", 17, 0),
    Sketcher.Constraint("Equal", 15, 4),
    Sketcher.Constraint("Radius", 8, Q("2 mm")),
    Sketcher.Constraint("DistanceX", 1, 1, 1, 2, Q("6 mm")),
    Sketcher.Constraint("DistanceX", 5, 1, 5, 2, Q("4 mm")),
    Sketcher.Constraint("DistanceX", 9, 1, 9, 2, Q("2.5 mm")),
    Sketcher.Constraint("DistanceY", 8, 3, -1, 1, Q("9 mm")),
    Sketcher.Constraint("DistanceX", 0, 2, -1, 1, Q("3 mm")),
    Sketcher.Constraint("DistanceY", 0, 2, -1, 1, Q("8 mm")),
    Sketcher.Constraint("DistanceX", 4, 2, -1, 1, Q("17 mm")),
    Sketcher.Constraint("DistanceX", 9, 2, -1, 1, Q("25 mm")),
])
pad8 = doc.addObject("PartDesign::Pad", "Pad007")
body6.addObject(pad8)
pad8.Profile = sketch14
pad8.Length = 4.5
pad8.Reversed = True
doc.recompute()

fillet2 = doc.addObject("PartDesign::Fillet", "Fillet001")
body6.addObject(fillet2)
fillet2.Base = (pad8, edges_at(pad8, [
    (0, -8, 5.25),
    (3, -6.75, 5.25),
    (-3, -6.75, 5.25),
    (0, -5.5, 5.25),
    (-15, -2, 5.25),
    (-17, 0, 5.25),
    (-15, 2, 5.25),
    (-13, 0, 5.25),
    (-27.25, -8.75, 5.25),
    (15, -2, 5.25),
    (13, 0, 5.25),
    (27.25, -8.75, 5.25),
    (17, 0, 5.25),
    (15, 2, 5.25),
]))
fillet2.Radius = 1
body2.Visibility = False
body3.Visibility = False
body4.Visibility = False
body5.Visibility = False

doc.recompute()
